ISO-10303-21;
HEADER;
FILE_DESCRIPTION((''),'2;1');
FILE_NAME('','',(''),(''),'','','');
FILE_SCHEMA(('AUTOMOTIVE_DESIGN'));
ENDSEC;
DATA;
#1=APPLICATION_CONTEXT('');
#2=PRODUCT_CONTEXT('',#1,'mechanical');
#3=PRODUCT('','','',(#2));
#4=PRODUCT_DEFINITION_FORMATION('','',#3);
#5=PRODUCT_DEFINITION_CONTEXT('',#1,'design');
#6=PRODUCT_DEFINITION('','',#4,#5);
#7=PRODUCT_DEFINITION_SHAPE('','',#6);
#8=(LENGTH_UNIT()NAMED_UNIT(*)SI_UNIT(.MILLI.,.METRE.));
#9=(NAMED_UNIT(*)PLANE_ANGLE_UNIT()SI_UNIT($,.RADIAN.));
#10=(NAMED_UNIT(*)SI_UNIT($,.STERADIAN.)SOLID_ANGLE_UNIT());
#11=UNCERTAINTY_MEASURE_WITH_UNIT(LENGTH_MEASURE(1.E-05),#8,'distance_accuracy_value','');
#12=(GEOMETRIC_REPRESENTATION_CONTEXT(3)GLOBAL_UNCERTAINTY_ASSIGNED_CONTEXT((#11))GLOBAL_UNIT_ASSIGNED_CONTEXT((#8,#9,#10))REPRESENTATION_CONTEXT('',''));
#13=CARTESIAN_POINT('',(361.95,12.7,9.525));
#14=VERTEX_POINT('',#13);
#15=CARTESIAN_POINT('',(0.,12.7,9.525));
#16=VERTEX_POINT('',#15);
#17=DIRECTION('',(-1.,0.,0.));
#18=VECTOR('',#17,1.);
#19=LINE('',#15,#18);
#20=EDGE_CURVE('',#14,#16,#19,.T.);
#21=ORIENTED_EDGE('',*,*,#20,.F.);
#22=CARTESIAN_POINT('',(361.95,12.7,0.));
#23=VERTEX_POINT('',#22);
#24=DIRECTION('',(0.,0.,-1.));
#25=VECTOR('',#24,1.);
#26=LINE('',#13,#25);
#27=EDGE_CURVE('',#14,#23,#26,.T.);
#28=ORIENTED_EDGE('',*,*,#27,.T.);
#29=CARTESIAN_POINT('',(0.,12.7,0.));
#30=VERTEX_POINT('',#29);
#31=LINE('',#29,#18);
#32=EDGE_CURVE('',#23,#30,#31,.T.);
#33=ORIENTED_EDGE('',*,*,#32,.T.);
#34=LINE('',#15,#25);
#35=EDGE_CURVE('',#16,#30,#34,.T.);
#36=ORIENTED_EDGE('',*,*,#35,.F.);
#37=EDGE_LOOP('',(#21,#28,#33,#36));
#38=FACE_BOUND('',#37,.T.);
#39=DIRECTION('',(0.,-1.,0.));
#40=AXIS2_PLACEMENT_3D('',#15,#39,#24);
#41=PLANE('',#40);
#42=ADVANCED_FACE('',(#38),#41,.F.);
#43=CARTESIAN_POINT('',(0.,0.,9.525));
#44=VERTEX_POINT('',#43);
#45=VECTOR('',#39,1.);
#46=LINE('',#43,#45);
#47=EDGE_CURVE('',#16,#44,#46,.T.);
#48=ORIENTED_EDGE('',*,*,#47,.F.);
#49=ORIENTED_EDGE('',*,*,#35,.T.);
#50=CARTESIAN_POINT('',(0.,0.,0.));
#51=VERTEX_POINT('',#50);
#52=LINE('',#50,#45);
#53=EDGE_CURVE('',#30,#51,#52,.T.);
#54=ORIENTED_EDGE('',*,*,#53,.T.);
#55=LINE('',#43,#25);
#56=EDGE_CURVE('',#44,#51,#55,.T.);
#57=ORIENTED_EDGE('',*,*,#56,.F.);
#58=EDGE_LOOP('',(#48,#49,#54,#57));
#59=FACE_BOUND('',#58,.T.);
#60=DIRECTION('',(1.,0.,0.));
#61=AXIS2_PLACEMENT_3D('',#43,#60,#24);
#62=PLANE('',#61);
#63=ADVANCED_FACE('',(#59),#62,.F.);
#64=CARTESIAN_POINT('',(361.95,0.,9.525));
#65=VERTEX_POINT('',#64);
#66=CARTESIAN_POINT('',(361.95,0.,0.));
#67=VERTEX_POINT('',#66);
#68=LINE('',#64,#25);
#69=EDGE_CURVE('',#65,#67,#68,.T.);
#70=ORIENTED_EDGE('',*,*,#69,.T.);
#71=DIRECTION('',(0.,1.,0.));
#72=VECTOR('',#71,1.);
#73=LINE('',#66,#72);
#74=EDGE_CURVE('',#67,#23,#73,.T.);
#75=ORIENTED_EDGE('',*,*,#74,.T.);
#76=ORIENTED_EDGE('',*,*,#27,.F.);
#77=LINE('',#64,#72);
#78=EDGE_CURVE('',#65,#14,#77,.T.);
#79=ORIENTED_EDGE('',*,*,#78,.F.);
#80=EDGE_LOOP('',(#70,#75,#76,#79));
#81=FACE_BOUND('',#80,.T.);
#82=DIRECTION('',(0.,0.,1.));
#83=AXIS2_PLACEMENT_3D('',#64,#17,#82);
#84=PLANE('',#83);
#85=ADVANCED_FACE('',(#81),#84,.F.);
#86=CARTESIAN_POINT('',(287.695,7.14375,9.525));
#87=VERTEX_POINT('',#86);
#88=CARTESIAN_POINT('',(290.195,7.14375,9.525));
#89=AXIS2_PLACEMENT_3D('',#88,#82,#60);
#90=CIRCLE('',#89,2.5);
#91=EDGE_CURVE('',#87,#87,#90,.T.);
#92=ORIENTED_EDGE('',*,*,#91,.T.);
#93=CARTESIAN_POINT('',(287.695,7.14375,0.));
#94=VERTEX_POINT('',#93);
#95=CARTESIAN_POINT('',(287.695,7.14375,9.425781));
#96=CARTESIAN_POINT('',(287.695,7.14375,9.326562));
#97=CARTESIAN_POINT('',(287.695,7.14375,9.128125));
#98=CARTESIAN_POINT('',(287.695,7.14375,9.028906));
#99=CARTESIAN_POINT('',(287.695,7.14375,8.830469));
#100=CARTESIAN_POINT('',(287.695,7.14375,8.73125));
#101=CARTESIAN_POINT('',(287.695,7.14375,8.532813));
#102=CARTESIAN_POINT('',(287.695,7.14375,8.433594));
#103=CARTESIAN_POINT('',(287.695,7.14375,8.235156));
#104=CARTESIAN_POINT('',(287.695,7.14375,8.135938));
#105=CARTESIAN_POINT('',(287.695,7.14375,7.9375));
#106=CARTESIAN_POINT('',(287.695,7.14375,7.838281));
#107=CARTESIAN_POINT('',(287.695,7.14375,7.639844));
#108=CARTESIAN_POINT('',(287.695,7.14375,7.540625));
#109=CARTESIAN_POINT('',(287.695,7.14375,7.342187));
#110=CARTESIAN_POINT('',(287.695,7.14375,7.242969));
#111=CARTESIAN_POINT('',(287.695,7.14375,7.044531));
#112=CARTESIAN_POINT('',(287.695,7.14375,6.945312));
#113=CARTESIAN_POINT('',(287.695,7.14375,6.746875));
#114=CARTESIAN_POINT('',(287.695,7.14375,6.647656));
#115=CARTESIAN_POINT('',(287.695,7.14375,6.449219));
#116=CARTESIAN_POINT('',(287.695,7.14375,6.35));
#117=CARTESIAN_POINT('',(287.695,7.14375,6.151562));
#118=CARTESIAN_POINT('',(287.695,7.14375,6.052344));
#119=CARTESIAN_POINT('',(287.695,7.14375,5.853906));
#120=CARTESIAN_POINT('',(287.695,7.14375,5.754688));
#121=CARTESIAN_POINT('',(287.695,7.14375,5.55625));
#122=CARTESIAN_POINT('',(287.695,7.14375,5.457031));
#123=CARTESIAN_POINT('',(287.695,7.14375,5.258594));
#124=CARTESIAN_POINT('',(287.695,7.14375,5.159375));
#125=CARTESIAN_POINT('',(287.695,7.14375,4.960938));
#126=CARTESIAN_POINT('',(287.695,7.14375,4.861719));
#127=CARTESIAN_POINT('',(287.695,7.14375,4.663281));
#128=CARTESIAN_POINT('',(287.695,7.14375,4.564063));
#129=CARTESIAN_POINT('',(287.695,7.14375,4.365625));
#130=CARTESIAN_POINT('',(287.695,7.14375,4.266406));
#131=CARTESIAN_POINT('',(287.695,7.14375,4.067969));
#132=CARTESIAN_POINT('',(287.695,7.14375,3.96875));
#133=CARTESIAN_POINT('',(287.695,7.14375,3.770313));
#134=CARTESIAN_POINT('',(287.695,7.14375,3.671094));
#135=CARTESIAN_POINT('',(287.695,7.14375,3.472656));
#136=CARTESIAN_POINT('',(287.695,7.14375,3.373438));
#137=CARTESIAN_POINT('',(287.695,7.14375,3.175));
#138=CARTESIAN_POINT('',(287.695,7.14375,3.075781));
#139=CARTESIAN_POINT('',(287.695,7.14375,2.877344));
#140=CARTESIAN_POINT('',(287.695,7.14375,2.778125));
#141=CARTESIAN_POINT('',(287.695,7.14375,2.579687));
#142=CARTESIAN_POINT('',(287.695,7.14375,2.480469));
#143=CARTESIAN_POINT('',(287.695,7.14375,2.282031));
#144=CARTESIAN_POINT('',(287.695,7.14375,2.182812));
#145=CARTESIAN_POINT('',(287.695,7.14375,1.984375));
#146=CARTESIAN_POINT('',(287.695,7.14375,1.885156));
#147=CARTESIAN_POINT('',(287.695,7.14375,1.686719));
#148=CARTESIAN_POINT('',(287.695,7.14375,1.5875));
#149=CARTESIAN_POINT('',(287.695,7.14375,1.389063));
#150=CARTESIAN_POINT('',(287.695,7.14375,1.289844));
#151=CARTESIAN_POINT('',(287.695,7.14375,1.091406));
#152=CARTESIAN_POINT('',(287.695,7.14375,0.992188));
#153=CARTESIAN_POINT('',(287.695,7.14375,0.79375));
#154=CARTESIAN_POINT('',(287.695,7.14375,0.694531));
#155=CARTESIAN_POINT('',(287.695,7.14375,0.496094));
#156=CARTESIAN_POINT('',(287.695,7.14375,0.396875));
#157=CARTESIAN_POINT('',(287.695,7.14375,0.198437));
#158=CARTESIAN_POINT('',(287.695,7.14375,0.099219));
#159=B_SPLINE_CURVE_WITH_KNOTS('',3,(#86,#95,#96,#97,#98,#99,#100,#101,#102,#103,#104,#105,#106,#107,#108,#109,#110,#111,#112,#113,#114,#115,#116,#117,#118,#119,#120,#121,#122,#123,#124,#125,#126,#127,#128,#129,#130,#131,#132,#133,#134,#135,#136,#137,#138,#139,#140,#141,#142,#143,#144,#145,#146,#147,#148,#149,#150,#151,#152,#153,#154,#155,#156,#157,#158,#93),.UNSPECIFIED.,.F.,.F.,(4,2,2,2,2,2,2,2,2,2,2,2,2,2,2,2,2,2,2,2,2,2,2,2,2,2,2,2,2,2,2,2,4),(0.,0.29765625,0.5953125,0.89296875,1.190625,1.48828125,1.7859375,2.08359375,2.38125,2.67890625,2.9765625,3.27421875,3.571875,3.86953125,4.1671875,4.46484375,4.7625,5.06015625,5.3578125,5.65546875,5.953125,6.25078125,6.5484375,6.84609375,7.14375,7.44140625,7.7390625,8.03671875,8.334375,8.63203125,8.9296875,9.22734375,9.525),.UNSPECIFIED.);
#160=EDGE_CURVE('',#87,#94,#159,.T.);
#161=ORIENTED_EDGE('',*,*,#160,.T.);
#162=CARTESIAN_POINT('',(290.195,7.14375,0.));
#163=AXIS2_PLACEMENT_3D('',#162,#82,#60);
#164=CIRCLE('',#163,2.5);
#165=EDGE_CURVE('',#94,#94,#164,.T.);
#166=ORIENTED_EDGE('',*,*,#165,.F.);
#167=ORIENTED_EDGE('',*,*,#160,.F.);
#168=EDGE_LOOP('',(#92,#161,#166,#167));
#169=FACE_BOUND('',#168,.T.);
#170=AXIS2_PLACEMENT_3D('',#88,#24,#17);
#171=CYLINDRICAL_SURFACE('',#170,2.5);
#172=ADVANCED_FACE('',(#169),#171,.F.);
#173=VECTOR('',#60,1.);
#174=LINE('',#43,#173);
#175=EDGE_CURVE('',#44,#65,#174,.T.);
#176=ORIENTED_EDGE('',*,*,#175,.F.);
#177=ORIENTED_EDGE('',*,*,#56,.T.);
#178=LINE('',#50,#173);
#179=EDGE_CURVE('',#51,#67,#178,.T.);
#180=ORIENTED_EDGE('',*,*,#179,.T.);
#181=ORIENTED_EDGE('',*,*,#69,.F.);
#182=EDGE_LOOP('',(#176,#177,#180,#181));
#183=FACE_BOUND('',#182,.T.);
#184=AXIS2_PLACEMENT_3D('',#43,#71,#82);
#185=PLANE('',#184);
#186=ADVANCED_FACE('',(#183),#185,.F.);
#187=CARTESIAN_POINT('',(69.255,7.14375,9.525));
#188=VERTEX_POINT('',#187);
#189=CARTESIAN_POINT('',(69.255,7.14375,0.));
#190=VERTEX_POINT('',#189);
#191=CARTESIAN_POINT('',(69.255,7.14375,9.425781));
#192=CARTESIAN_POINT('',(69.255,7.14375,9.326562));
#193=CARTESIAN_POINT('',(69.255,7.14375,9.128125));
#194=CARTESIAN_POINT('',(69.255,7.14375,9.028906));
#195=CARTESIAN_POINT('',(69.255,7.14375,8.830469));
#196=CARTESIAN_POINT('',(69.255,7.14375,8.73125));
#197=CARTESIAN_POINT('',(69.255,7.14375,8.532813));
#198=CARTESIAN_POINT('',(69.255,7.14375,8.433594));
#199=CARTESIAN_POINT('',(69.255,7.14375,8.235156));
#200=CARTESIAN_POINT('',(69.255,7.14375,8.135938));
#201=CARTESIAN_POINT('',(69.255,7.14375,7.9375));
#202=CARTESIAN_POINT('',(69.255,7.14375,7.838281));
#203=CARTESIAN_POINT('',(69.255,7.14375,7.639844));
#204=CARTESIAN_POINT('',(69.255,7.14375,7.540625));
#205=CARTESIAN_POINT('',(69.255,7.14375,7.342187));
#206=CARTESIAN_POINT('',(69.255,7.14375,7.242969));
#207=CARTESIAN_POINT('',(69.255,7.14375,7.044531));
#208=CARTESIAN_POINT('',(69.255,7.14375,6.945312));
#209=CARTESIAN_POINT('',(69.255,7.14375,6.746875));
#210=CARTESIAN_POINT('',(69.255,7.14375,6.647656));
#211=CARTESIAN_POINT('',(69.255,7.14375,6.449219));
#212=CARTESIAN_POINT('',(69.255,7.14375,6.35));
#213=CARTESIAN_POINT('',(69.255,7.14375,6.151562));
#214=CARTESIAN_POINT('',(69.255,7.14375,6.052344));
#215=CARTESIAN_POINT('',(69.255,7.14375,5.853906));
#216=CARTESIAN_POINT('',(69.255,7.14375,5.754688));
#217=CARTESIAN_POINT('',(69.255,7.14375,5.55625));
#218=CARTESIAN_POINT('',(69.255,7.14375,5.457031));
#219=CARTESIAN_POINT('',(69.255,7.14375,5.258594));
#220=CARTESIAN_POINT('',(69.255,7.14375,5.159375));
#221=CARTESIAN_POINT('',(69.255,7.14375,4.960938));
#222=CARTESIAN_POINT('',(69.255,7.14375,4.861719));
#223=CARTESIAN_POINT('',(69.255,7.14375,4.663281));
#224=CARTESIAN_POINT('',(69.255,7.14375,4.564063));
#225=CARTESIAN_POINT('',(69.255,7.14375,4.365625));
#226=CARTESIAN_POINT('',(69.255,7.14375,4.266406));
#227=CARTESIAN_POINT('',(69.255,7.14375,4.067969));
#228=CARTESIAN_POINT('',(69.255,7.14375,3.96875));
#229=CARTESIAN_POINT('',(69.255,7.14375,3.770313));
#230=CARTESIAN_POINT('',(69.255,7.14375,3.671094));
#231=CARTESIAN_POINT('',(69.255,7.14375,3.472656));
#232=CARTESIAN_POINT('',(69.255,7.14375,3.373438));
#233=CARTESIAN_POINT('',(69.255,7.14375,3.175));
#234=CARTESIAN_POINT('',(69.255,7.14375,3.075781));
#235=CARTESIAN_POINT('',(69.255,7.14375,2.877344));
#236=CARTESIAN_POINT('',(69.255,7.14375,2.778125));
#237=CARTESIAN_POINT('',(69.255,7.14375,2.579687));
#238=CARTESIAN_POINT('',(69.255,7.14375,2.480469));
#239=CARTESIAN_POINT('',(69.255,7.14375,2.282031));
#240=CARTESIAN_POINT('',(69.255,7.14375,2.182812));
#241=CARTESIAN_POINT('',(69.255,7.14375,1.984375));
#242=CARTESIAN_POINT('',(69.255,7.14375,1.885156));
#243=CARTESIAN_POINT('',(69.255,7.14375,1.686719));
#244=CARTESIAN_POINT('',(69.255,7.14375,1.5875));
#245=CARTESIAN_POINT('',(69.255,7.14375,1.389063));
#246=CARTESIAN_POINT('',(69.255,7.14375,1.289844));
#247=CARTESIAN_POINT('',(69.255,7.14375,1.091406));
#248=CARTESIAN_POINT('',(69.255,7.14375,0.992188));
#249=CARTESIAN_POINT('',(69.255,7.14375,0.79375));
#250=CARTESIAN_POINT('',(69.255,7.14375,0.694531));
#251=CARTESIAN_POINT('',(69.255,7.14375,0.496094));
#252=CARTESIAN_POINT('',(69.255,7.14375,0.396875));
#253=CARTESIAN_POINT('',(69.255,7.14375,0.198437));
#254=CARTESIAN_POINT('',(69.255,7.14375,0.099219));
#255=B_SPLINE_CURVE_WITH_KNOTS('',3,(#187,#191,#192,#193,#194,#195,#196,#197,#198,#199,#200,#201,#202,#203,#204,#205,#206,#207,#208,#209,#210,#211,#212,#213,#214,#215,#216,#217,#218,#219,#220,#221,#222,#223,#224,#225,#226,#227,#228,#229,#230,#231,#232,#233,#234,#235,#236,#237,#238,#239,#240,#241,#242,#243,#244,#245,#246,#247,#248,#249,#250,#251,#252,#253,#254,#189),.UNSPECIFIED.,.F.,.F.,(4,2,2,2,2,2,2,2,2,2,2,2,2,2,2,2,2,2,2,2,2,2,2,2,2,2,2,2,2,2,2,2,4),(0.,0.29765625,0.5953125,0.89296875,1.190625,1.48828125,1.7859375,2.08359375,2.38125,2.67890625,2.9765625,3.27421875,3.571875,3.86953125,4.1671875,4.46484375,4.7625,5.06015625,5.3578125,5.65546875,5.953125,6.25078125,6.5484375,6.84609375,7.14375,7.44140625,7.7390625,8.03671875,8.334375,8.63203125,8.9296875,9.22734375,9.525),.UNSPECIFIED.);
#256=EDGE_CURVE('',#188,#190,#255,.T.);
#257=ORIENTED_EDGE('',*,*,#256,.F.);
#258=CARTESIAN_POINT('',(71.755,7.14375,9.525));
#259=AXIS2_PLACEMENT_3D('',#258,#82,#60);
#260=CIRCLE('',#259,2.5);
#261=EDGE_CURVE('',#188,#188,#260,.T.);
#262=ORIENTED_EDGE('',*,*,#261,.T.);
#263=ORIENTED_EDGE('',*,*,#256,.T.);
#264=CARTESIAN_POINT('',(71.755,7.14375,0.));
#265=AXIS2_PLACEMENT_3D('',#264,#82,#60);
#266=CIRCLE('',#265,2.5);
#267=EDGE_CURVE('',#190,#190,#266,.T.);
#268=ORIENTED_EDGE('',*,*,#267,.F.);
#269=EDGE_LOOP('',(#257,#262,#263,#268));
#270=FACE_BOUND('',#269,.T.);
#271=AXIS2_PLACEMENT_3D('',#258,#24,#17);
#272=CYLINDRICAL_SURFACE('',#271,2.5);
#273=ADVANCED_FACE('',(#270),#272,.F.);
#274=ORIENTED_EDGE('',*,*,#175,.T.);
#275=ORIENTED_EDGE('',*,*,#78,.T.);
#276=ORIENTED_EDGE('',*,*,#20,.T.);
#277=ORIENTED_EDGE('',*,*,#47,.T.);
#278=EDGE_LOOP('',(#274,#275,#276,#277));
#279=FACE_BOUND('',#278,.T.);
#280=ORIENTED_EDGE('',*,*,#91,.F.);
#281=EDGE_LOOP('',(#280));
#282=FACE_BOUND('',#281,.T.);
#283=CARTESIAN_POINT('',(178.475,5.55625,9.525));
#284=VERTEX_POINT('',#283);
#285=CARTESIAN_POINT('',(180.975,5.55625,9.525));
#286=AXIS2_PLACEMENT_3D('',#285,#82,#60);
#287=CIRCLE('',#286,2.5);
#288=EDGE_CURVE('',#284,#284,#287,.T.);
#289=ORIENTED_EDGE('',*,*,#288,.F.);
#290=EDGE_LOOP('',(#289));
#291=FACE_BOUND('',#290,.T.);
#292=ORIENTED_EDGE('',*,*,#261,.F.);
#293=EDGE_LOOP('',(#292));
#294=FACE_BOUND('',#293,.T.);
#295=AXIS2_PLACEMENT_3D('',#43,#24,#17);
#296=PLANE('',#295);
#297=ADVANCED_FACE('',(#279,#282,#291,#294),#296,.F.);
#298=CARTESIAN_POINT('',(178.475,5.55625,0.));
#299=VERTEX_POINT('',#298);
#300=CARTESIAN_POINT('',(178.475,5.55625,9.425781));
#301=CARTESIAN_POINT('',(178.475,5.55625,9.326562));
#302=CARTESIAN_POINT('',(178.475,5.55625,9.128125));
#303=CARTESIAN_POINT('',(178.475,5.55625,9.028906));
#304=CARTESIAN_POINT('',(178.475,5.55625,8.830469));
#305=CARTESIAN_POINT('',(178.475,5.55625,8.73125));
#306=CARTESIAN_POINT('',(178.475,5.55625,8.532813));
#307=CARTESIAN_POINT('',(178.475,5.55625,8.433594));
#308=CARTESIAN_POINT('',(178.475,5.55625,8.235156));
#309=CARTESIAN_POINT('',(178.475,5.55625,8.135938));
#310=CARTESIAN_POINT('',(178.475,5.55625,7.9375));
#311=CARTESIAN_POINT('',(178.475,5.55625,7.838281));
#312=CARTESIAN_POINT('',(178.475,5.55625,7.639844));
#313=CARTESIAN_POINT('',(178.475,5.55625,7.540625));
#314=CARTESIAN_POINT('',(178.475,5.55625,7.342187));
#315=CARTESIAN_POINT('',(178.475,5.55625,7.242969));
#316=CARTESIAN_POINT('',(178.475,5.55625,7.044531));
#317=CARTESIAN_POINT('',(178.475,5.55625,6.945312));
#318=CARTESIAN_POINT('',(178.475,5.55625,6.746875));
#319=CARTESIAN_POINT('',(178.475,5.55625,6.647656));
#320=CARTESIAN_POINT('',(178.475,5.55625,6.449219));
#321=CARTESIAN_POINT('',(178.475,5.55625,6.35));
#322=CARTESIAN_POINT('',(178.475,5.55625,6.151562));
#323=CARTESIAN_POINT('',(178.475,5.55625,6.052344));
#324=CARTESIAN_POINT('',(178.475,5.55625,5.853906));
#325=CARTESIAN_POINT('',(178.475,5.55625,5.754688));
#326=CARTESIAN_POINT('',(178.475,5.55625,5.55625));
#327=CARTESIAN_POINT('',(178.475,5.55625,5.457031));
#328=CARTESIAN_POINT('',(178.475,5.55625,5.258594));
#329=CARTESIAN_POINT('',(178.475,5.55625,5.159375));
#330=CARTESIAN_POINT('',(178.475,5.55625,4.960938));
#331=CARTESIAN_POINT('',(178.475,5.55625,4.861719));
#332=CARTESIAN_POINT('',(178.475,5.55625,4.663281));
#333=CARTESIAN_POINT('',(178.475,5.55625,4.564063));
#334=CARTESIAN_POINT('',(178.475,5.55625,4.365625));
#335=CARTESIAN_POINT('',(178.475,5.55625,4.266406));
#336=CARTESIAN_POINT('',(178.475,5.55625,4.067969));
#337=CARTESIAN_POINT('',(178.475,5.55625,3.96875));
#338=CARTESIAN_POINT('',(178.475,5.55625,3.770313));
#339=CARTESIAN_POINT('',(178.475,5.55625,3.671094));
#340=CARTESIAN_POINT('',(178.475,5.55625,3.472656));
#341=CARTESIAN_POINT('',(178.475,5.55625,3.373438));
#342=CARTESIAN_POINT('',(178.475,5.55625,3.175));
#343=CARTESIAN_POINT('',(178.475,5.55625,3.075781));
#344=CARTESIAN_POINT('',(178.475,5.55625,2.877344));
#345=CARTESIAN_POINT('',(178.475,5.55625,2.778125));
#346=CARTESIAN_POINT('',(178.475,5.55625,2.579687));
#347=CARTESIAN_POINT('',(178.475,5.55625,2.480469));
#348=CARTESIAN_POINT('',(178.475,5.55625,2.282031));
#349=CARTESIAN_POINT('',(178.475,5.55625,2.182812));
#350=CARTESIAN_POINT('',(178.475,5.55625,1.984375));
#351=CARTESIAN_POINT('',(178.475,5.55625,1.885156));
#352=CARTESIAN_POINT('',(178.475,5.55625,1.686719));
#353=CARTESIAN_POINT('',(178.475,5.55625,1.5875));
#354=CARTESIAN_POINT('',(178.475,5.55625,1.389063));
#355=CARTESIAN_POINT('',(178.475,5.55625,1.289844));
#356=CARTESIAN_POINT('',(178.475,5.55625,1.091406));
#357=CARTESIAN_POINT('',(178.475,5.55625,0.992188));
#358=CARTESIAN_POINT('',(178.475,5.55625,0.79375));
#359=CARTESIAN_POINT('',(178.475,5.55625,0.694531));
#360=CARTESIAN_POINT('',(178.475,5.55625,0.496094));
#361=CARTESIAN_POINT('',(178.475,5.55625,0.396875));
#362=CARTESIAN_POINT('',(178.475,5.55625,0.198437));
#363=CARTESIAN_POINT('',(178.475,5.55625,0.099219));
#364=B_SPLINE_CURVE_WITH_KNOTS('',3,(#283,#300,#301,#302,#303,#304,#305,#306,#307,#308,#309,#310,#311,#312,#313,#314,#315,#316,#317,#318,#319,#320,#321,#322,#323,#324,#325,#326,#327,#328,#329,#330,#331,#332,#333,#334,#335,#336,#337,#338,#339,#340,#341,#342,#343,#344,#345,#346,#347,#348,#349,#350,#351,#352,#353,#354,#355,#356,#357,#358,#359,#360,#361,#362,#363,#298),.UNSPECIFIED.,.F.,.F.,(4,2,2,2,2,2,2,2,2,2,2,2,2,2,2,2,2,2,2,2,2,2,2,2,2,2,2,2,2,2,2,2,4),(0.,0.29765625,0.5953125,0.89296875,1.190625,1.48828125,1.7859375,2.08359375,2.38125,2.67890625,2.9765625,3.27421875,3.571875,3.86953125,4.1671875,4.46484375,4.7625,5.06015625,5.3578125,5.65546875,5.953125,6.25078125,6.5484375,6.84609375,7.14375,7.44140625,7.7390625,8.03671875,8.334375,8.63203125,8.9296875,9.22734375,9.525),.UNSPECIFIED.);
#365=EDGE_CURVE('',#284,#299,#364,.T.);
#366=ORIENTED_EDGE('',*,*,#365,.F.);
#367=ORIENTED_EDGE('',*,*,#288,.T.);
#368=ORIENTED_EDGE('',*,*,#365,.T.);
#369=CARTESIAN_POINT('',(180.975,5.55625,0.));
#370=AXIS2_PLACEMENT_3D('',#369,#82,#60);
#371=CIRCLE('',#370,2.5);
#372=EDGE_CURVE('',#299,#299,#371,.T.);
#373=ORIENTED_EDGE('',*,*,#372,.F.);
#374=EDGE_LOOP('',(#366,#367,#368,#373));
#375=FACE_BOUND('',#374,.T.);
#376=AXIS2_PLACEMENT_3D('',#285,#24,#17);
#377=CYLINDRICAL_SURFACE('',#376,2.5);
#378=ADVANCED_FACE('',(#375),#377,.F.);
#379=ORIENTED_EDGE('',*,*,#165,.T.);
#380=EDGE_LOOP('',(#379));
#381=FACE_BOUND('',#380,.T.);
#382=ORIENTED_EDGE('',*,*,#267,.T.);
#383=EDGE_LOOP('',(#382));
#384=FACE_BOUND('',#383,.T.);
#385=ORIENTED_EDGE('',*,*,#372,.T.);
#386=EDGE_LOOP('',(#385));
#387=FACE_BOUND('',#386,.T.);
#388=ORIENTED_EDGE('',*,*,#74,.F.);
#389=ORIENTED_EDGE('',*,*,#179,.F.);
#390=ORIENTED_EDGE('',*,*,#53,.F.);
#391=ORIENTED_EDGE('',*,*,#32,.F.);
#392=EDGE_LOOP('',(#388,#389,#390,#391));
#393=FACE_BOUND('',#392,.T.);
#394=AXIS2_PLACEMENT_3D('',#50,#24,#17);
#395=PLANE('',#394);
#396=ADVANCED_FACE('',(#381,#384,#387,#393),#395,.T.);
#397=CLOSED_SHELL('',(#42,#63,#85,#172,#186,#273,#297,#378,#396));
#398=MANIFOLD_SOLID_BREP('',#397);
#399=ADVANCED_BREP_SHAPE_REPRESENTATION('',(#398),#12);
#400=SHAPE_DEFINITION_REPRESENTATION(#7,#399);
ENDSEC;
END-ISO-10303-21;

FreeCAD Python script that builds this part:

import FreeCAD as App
import Part
import Sketcher
from FreeCAD import Vector
Q = App.Units.Quantity


def add_polygon(sketch, points):
    """Adds a closed chain of lines whose ends are joined by coincident constraints."""
    first, n = sketch.GeometryCount, len(points)
    for a, b in zip(points, points[1:] + points[:1]):
        sketch.addGeometry(Part.LineSegment(App.Vector(*a, 0), App.Vector(*b, 0)), False)
    for i in range(n):
        sketch.addConstraint(Sketcher.Constraint("Coincident", first + i, 2, first + (i + 1) % n, 1))

doc = App.newDocument("Part")
body = doc.addObject("PartDesign::Body", "Body")

sketch1 = body.newObject("Sketcher::SketchObject", "Sketch")
sketch1.AttachmentSupport = (doc.getObject("XY_Plane"), [""])
sketch1.MapMode = "FlatFace"
add_polygon(sketch1, [(0, 12.7), (0, 0), (361.9, 0), (361.9, 12.7)])
sketch1.addGeometry(Part.Circle(Vector(181, 5.6, 0), Vector(0, 0, 1), 2.5), False)
sketch1.addGeometry(Part.Circle(Vector(71.8, 7.1, 0), Vector(0, 0, 1), 2.5), False)
sketch1.addGeometry(Part.Circle(Vector(290.2, 7.1, 0), Vector(0, 0, 1), 2.5), False)
sketch1.addConstraint(Sketcher.Constraint("Vertical", 0))
sketch1.addConstraint(Sketcher.Constraint("Horizontal", 1))
sketch1.addConstraint(Sketcher.Constraint("Vertical", 2))
sketch1.addConstraint(Sketcher.Constraint("Horizontal", 3))
sketch1.addConstraint(Sketcher.Constraint("Coincident", 0, 2, -1, 1))
sketch1.addConstraint(Sketcher.Constraint("Equal", 4, 5))
sketch1.addConstraint(Sketcher.Constraint("Equal", 5, 6))
sketch1.addConstraint(Sketcher.Constraint("Horizontal", 5, 3, 6, 3))
sketch1.addConstraint(Sketcher.Constraint("DistanceY", 0, 2, 0, 1, Q("0.5 in")))
sketch1.addConstraint(Sketcher.Constraint("DistanceX", 1, 1, 1, 2, Q("14.25 in")))
sketch1.addConstraint(Sketcher.Constraint("DistanceX", 5, 3, 4, 3, Q("4.3 in")))
sketch1.addConstraint(Sketcher.Constraint("DistanceX", 4, 3, 6, 3, Q("4.3 in")))
sketch1.addConstraint(Sketcher.Constraint("Diameter", 4, 5.0))
sketch1.addConstraint(Sketcher.Constraint("DistanceX", -1, 1, 4, 3, Q("7.125 in")))
sketch1.addConstraint(Sketcher.Constraint("DistanceY", -1, 1, 4, 3, Q("0.21875 in")))
sketch1.addConstraint(Sketcher.Constraint("DistanceY", -1, 1, 5, 3, Q("0.28125 in")))
pad1 = body.newObject("PartDesign::Pad", "Pad")
pad1.Profile = sketch1
pad1.Length = Q("0.375 in")

doc.recompute()
